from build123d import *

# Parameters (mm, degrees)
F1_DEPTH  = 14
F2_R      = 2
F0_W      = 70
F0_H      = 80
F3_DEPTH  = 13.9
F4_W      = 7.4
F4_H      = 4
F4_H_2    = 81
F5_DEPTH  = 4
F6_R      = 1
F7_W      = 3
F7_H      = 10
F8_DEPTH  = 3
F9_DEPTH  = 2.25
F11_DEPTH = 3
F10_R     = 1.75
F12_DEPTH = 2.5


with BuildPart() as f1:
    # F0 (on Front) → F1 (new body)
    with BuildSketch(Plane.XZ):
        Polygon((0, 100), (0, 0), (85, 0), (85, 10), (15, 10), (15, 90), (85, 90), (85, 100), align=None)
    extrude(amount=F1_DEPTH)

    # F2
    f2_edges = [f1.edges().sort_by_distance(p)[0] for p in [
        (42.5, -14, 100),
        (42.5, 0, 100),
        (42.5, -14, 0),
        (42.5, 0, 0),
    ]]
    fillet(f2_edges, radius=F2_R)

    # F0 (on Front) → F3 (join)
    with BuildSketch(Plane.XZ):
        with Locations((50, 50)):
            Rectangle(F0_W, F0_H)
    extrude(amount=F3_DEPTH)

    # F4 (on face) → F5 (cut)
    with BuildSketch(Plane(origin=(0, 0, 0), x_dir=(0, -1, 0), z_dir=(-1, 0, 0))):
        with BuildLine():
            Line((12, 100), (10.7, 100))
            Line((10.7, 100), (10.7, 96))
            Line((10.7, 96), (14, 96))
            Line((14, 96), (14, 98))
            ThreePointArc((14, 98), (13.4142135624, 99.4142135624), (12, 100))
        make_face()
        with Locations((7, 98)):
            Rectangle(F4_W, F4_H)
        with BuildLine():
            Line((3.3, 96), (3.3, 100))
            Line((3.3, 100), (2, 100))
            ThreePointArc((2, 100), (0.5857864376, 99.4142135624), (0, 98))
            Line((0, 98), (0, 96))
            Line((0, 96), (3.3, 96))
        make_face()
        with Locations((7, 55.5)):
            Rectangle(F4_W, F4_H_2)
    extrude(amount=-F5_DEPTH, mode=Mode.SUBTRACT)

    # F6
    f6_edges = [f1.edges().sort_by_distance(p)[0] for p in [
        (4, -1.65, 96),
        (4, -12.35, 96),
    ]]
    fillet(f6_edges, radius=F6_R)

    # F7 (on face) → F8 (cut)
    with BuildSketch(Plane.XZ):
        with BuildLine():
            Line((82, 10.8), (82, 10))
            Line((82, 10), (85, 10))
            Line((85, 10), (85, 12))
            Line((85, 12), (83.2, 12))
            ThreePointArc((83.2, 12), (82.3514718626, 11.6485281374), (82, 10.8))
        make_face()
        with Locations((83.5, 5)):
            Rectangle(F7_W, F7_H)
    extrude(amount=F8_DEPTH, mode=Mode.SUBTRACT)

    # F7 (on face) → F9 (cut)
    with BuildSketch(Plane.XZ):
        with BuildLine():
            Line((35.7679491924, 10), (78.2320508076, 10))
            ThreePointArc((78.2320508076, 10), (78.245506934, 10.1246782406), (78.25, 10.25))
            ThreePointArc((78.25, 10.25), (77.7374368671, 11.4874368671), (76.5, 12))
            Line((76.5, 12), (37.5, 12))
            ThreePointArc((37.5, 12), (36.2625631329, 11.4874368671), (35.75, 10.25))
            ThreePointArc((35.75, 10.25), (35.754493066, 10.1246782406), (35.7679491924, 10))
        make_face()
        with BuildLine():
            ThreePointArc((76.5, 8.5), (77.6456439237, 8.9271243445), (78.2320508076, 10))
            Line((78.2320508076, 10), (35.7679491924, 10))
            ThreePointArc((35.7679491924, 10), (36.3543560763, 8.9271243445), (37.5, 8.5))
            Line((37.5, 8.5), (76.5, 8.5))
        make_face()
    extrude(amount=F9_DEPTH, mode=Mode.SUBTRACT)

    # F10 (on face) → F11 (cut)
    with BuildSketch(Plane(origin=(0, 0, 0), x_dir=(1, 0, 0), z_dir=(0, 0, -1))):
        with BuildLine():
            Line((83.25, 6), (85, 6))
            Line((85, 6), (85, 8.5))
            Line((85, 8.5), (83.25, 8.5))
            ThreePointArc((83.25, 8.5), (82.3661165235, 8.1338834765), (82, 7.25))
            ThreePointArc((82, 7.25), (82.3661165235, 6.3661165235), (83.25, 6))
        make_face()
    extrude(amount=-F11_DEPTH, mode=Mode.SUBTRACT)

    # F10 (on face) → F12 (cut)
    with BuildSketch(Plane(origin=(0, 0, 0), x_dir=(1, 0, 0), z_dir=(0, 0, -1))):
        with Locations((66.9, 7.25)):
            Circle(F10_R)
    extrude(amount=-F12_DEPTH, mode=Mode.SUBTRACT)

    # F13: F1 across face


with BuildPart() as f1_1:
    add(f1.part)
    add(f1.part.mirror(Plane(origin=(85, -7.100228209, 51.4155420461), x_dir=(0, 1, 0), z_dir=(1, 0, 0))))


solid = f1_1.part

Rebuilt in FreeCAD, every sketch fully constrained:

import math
import FreeCAD as App
import Part
import Sketcher

V = App.Vector
Q = App.Units.Quantity


def edges_at(feature, points):
    """Names of the edges that pass closest to the given points."""
    edges = feature.Shape.Edges
    near = lambda p: min(range(len(edges)), key=lambda i: edges[i].distToShape(Part.Vertex(*p))[0])
    return sorted({f"Edge{near(p) + 1}" for p in points})


def add_polygon(sketch, points):
    """Adds a closed chain of lines whose ends are joined by coincident constraints."""
    first, n = sketch.GeometryCount, len(points)
    for a, b in zip(points, points[1:] + points[:1]):
        sketch.addGeometry(Part.LineSegment(App.Vector(*a, 0), App.Vector(*b, 0)), False)
    for i in range(n):
        sketch.addConstraint(Sketcher.Constraint("Coincident", first + i, 2, first + (i + 1) % n, 1))

doc = App.newDocument("Part")
body = doc.addObject("PartDesign::Body", "Body")

# Sketch on XZ plane
sketch1 = body.newObject("Sketcher::SketchObject", "Sketch")
sketch1.AttachmentSupport = (doc.getObject("XZ_Plane"), [""])
sketch1.MapMode = "FlatFace"
add_polygon(sketch1, [(0, 100), (0, 0), (85, 0), (85, 10), (15, 10), (15, 90), (85, 90), (85, 100)])  # lines 0-7
sketch1.addConstraint([
    Sketcher.Constraint("Vertical", 0),
    Sketcher.Constraint("Horizontal", 1),
    Sketcher.Constraint("Vertical", 2),
    Sketcher.Constraint("Horizontal", 3),
    Sketcher.Constraint("Vertical", 4),
    Sketcher.Constraint("Horizontal", 5),
    Sketcher.Constraint("Vertical", 6),
    Sketcher.Constraint("Horizontal", 7),
    Sketcher.Constraint("Coincident", 0, 2, -1, 1),
    Sketcher.Constraint("Vertical", 2, 2, 5, 2),
    Sketcher.Constraint("Equal", 2, 6),
    Sketcher.Constraint("DistanceX", 1, 1, 1, 2, Q("85 mm")),
    Sketcher.Constraint("DistanceX", 3, 2, 3, 1, Q("70 mm")),
    Sketcher.Constraint("DistanceY", 0, 2, 0, 1, Q("100 mm")),
    Sketcher.Constraint("DistanceY", 2, 1, 2, 2, Q("10 mm")),
])
pad1 = body.newObject("PartDesign::Pad", "Pad")
pad1.Profile = sketch1
pad1.Length = 14
doc.recompute()

fillet = body.newObject("PartDesign::Fillet", "Fillet")
fillet.Base = (pad1, edges_at(pad1, [
    (42.5, -14, 100),
    (42.5, 0, 100),
    (42.5, -14, 0),
    (42.5, 0, 0),
]))
fillet.Radius = 2

# Sketch on XZ plane
sketch2 = body.newObject("Sketcher::SketchObject", "Sketch001")
sketch2.AttachmentSupport = (doc.getObject("XZ_Plane"), [""])
sketch2.MapMode = "FlatFace"
add_polygon(sketch2, [(15, 90), (15, 10), (85, 10), (85, 90)])  # lines 0-3
sketch2.addConstraint([
    Sketcher.Constraint("Vertical", 0),
    Sketcher.Constraint("Horizontal", 1),
    Sketcher.Constraint("Vertical", 2),
    Sketcher.Constraint("Horizontal", 3),
    Sketcher.Constraint("DistanceX", 1, 1, 1, 2, Q("70 mm")),
    Sketcher.Constraint("DistanceY", 0, 2, 0, 1, Q("80 mm")),
    Sketcher.Constraint("DistanceX", -1, 1, 0, 2, Q("15 mm")),
    Sketcher.Constraint("DistanceY", -1, 1, 0, 2, Q("10 mm")),
])
pad2 = body.newObject("PartDesign::Pad", "Pad001")
pad2.Profile = sketch2
pad2.Length = 13.9

# Sketch on YZ plane
sketch3 = body.newObject("Sketcher::SketchObject", "Sketch002")
sketch3.AttachmentSupport = (doc.getObject("YZ_Plane"), [""])
sketch3.MapMode = "FlatFace"
sketch3.addGeometry([
    Part.LineSegment(V(-12, 100, 0), V(-2, 100, 0)),  # 0
    Part.ArcOfCircle(Part.Circle(V(-2, 98, 0), V(0, 0, 1), 2), math.radians(0), math.radians(90)),  # 1
    Part.LineSegment(V(0, 98, 0), V(0, 96, 0)),  # 2
    Part.LineSegment(V(0, 96, 0), V(-3.3, 96, 0)),  # 3
    Part.LineSegment(V(-3.3, 96, 0), V(-3.3, 15, 0)),  # 4
    Part.LineSegment(V(-3.3, 15, 0), V(-10.7, 15, 0)),  # 5
    Part.LineSegment(V(-10.7, 15, 0), V(-10.7, 96, 0)),  # 6
    Part.LineSegment(V(-10.7, 96, 0), V(-14, 96, 0)),  # 7
    Part.LineSegment(V(-14, 96, 0), V(-14, 98, 0)),  # 8
    Part.ArcOfCircle(Part.Circle(V(-12, 98, 0), V(0, 0, 1), 2), math.radians(90), math.radians(180)),  # 9
], False)
sketch3.addConstraint([
    Sketcher.Constraint("Tangent", 0, 2, 1, 2),
    Sketcher.Constraint("Tangent", 1, 1, 2, 1),
    Sketcher.Constraint("Coincident", 2, 2, 3, 1),
    Sketcher.Constraint("Coincident", 3, 2, 4, 1),
    Sketcher.Constraint("Coincident", 4, 2, 5, 1),
    Sketcher.Constraint("Coincident", 5, 2, 6, 1),
    Sketcher.Constraint("Coincident", 6, 2, 7, 1),
    Sketcher.Constraint("Coincident", 7, 2, 8, 1),
    Sketcher.Constraint("Tangent", 8, 2, 9, 2),
    Sketcher.Constraint("Tangent", 9, 1, 0, 1),
    Sketcher.Constraint("Horizontal", 0),
    Sketcher.Constraint("Vertical", 2),
    Sketcher.Constraint("Horizontal", 3),
    Sketcher.Constraint("Vertical", 4),
    Sketcher.Constraint("Horizontal", 5),
    Sketcher.Constraint("Vertical", 6),
    Sketcher.Constraint("Horizontal", 7),
    Sketcher.Constraint("Vertical", 8),
    Sketcher.Constraint("Equal", 1, 9),
    Sketcher.Constraint("PointOnObject", 1, 1, -2),
    Sketcher.Constraint("Horizontal", 3, 2, 6, 2),
    Sketcher.Constraint("Equal", 3, 7),
    Sketcher.Constraint("Radius", 1, Q("2 mm")),
    Sketcher.Constraint("DistanceX", 0, 1, 0, 2, Q("10 mm")),
    Sketcher.Constraint("DistanceY", 2, 2, 2, 1, Q("2 mm")),
    Sketcher.Constraint("DistanceY", 4, 2, 4, 1, Q("81 mm")),
    Sketcher.Constraint("DistanceX", 3, 2, 3, 1, Q("3.3 mm")),
    Sketcher.Constraint("DistanceY", -1, 1, 1, 3, Q("98 mm")),
])
pocket1 = body.newObject("PartDesign::Pocket", "Pocket")
pocket1.Profile = sketch3
pocket1.Length = 4
pocket1.Reversed = True
doc.recompute()

fillet2 = body.newObject("PartDesign::Fillet", "Fillet001")
fillet2.Base = (pocket1, edges_at(pocket1, [(4, -1.65, 96), (4, -12.35, 96)]))
fillet2.Radius = 1

# Sketch on XZ plane
sketch4 = body.newObject("Sketcher::SketchObject", "Sketch003")
sketch4.AttachmentSupport = (doc.getObject("XZ_Plane"), [""])
sketch4.MapMode = "FlatFace"
sketch4.addGeometry([
    Part.LineSegment(V(82, 10.8, 0), V(82, 0, 0)),  # 0
    Part.LineSegment(V(82, 0, 0), V(85, 0, 0)),  # 1
    Part.LineSegment(V(85, 0, 0), V(85, 12, 0)),  # 2
    Part.LineSegment(V(85, 12, 0), V(83.2, 12, 0)),  # 3
    Part.ArcOfCircle(Part.Circle(V(83.2, 10.8, 0), V(0, 0, 1), 1.2), math.radians(90), math.radians(180)),  # 4
], False)
sketch4.addConstraint([
    Sketcher.Constraint("Coincident", 0, 2, 1, 1),
    Sketcher.Constraint("Coincident", 1, 2, 2, 1),
    Sketcher.Constraint("Coincident", 2, 2, 3, 1),
    Sketcher.Constraint("Tangent", 3, 2, 4, 1),
    Sketcher.Constraint("Tangent", 4, 2, 0, 1),
    Sketcher.Constraint("Vertical", 0),
    Sketcher.Constraint("Horizontal", 1),
    Sketcher.Constraint("Vertical", 2),
    Sketcher.Constraint("Horizontal", 3),
    Sketcher.Constraint("PointOnObject", 0, 2, -1),
    Sketcher.Constraint("Radius", 4, Q("1.2 mm")),
    Sketcher.Constraint("DistanceX", 1, 1, 1, 2, Q("3 mm")),
    Sketcher.Constraint("DistanceY", 2, 1, 2, 2, Q("12 mm")),
    Sketcher.Constraint("DistanceX", -1, 1, 0, 2, Q("82 mm")),
])
pocket2 = body.newObject("PartDesign::Pocket", "Pocket001")
pocket2.Profile = sketch4
pocket2.Length = 3
pocket2.Reversed = True

# Sketch on XZ plane
sketch5 = body.newObject("Sketcher::SketchObject", "Sketch004")
sketch5.AttachmentSupport = (doc.getObject("XZ_Plane"), [""])
sketch5.MapMode = "FlatFace"
sketch5.addGeometry([
    Part.ArcOfCircle(Part.Circle(V(76.5, 10.25, 0), V(0, 0, 1), 1.75), math.radians(-8.213211), math.radians(0)),  # 0
    Part.ArcOfCircle(Part.Circle(V(76.5, 10.25, 0), V(0, 0, 1), 1.75), math.radians(0), math.radians(90)),  # 1
    Part.LineSegment(V(76.5, 12, 0), V(37.5, 12, 0)),  # 2
    Part.ArcOfCircle(Part.Circle(V(37.5, 10.25, 0), V(0, 0, 1), 1.75), math.radians(90), math.radians(180)),  # 3
    Part.ArcOfCircle(Part.Circle(V(37.5, 10.25, 0), V(0, 0, 1), 1.75), math.radians(180), math.radians(188.213211)),  # 4
    Part.ArcOfCircle(Part.Circle(V(37.5, 10.25, 0), V(0, 0, 1), 1.75), math.radians(-171.786789), math.radians(-90)),  # 5
    Part.LineSegment(V(37.5, 8.5, 0), V(76.5, 8.5, 0)),  # 6
    Part.ArcOfCircle(Part.Circle(V(76.5, 10.25, 0), V(0, 0, 1), 1.75), math.radians(-90), math.radians(-8.213211)),  # 7
], False)
sketch5.addConstraint([
    Sketcher.Constraint("Tangent", 0, 2, 1, 1),
    Sketcher.Constraint("Tangent", 1, 2, 2, 1),
    Sketcher.Constraint("Tangent", 2, 2, 3, 1),
    Sketcher.Constraint("Tangent", 3, 2, 4, 1),
    Sketcher.Constraint("Tangent", 4, 2, 5, 1),
    Sketcher.Constraint("Tangent", 5, 2, 6, 1),
    Sketcher.Constraint("Tangent", 6, 2, 7, 1),
    Sketcher.Constraint("Tangent", 7, 2, 0, 1),
    Sketcher.Constraint("Horizontal", 2),
    Sketcher.Constraint("Horizontal", 6),
    Sketcher.Constraint("Coincident", 5, 3, 3, 3),
    Sketcher.Constraint("Equal", 0, 1),
    Sketcher.Constraint("Equal", 1, 3),
    Sketcher.Constraint("Horizontal", 7, 3, 0, 2),
    Sketcher.Constraint("Horizontal", 0, 2, 3, 2),
    Sketcher.Constraint("Horizontal", 4, 2, 7, 2),
    Sketcher.Constraint("DistanceX", 2, 2, 2, 1, Q("39 mm")),
    Sketcher.Constraint("Radius", 0, Q("1.75 mm")),
    Sketcher.Constraint("DistanceY", -1, 1, 1, 2, Q("12 mm")),
    Sketcher.Constraint("DistanceY", -1, 1, 4, 2, Q("10 mm")),
    Sketcher.Constraint("DistanceX", -1, 1, 0, 3, Q("76.5 mm")),
])
pocket3 = body.newObject("PartDesign::Pocket", "Pocket002")
pocket3.Profile = sketch5
pocket3.Length = 2.25
pocket3.Reversed = True

# Sketch on XY plane
sketch6 = body.newObject("Sketcher::SketchObject", "Sketch005")
sketch6.AttachmentSupport = (doc.getObject("XY_Plane"), [""])
sketch6.MapMode = "FlatFace"
sketch6.addGeometry([
    Part.LineSegment(V(83.25, -6, 0), V(85, -6, 0)),  # 0
    Part.LineSegment(V(85, -6, 0), V(85, -8.5, 0)),  # 1
    Part.LineSegment(V(85, -8.5, 0), V(83.25, -8.5, 0)),  # 2
    Part.ArcOfCircle(Part.Circle(V(83.25, -7.25, 0), V(0, 0, 1), 1.25), math.radians(180), math.radians(270)),  # 3
    Part.ArcOfCircle(Part.Circle(V(83.25, -7.25, 0), V(0, 0, 1), 1.25), math.radians(90), math.radians(180)),  # 4
], False)
sketch6.addConstraint([
    Sketcher.Constraint("Coincident", 0, 2, 1, 1),
    Sketcher.Constraint("Coincident", 1, 2, 2, 1),
    Sketcher.Constraint("Tangent", 2, 2, 3, 2),
    Sketcher.Constraint("Tangent", 3, 1, 4, 2),
    Sketcher.Constraint("Tangent", 4, 1, 0, 1),
    Sketcher.Constraint("Horizontal", 0),
    Sketcher.Constraint("Vertical", 1),
    Sketcher.Constraint("Horizontal", 2),
    Sketcher.Constraint("Equal", 3, 4),
    Sketcher.Constraint("Horizontal", 4, 3, 3, 1),
    Sketcher.Constraint("Radius", 3, Q("1.25 mm")),
    Sketcher.Constraint("DistanceX", -1, 1, 0, 2, Q("85 mm")),
    Sketcher.Constraint("DistanceY", 0, 2, -1, 1, Q("6 mm")),
    Sketcher.Constraint("DistanceX", -1, 1, 3, 1, Q("82 mm")),
])
pocket4 = body.newObject("PartDesign::Pocket", "Pocket003")
pocket4.Profile = sketch6
pocket4.Length = 3
pocket4.Reversed = True

# Sketch on XY plane
sketch7 = body.newObject("Sketcher::SketchObject", "Sketch006")
sketch7.AttachmentSupport = (doc.getObject("XY_Plane"), [""])
sketch7.MapMode = "FlatFace"
sketch7.addGeometry(Part.Circle(V(66.9, -7.25, 0), V(0, 0, 1), 1.75), False)
sketch7.addConstraint([
    Sketcher.Constraint("Diameter", 0, Q("3.5 mm")),
    Sketcher.Constraint("DistanceX", -1, 1, 0, 3, Q("66.9 mm")),
    Sketcher.Constraint("DistanceY", 0, 3, -1, 1, Q("7.25 mm")),
])
pocket5 = body.newObject("PartDesign::Pocket", "Pocket004")
pocket5.Profile = sketch7
pocket5.Length = 2.5
pocket5.Reversed = True
body2 = doc.addObject("PartDesign::Body", "Body001")
doc.recompute()

body2.BaseFeature = body
doc.recompute()

mirroring = doc.addObject("Part::Mirroring", "Mirroring")
mirroring.Source = body
mirroring.Base = V(85, -7.100228, 51.415542)
mirroring.Normal = V(1, 0, 0)
body3 = doc.addObject("PartDesign::Body", "Body002")
body3.BaseFeature = mirroring
boolean = body2.newObject("PartDesign::Boolean", "Boolean")
boolean.Type = "Fuse"
boolean.addObjects([body3])
doc.recompute()
mirroring.Visibility = False

doc.recompute()
